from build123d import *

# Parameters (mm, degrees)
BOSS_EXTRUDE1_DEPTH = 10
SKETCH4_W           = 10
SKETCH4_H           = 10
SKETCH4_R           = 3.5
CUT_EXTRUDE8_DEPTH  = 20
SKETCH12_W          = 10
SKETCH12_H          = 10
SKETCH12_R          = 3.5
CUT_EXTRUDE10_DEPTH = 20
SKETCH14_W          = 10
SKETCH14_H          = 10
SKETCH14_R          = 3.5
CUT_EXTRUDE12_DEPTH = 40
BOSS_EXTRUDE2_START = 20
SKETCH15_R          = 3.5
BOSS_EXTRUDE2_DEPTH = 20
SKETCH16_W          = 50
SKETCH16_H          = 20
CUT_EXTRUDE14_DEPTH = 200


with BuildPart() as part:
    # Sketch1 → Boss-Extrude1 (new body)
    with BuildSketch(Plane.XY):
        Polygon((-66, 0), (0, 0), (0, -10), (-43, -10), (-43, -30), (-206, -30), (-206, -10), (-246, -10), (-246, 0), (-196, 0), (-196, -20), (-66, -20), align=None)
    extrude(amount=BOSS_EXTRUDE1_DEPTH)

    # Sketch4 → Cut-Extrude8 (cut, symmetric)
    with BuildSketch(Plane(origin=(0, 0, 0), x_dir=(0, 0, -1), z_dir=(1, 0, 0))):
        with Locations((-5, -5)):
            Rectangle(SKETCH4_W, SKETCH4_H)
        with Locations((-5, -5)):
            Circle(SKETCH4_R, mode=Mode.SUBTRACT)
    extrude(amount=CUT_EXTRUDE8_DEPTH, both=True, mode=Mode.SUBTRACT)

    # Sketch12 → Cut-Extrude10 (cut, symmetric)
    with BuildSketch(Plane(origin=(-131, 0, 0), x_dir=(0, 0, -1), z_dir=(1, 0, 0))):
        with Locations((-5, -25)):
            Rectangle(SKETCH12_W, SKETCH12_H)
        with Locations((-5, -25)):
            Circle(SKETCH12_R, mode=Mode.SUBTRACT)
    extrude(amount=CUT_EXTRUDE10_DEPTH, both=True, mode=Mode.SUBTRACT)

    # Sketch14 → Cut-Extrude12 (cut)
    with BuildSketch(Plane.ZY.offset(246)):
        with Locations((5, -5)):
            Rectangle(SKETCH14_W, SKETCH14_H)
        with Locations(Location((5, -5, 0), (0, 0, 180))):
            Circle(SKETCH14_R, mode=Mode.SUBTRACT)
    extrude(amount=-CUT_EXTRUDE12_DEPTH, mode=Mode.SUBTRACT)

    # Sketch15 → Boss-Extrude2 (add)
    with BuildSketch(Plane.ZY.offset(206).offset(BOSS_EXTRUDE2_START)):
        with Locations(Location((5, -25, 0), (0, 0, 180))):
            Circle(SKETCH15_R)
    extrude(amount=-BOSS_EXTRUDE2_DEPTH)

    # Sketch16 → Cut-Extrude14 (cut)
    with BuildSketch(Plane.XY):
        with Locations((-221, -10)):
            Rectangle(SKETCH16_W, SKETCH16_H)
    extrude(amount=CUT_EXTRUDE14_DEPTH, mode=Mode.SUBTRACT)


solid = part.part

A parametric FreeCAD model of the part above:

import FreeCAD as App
import Part
import Sketcher

doc = App.newDocument("Part")
body = doc.addObject("PartDesign::Body", "Body")

# Sketch on XY plane
sketch1 = body.newObject("Sketcher::SketchObject", "Sketch")
sketch1.AttachmentSupport = (doc.getObject("XY_Plane"), [""])
sketch1.MapMode = "FlatFace"
sketch1.addGeometry([
    Part.LineSegment(App.Vector(0, 0, 0), App.Vector(-66, 0, 0)),  # 0
    Part.LineSegment(App.Vector(-66, 0, 0), App.Vector(-66, -20, 0)),  # 1
    Part.LineSegment(App.Vector(-66, -20, 0), App.Vector(-196, -20, 0)),  # 2
    Part.LineSegment(App.Vector(-196, -20, 0), App.Vector(-196, 0, 0)),  # 3
    Part.LineSegment(App.Vector(-196, 0, 0), App.Vector(-246, 0, 0)),  # 4
    Part.LineSegment(App.Vector(-246, 0, 0), App.Vector(-246, -10, 0)),  # 5
    Part.LineSegment(App.Vector(-246, -10, 0), App.Vector(-206, -10, 0)),  # 6
    Part.LineSegment(App.Vector(-206, -10, 0), App.Vector(-206, -30, 0)),  # 7
    Part.LineSegment(App.Vector(-206, -30, 0), App.Vector(-43, -30, 0)),  # 8
    Part.LineSegment(App.Vector(-43, -30, 0), App.Vector(-43, -10, 0)),  # 9
    Part.LineSegment(App.Vector(-43, -10, 0), App.Vector(0, -10, 0)),  # 10
    Part.LineSegment(App.Vector(0, -10, 0), App.Vector(0, 0, 0)),  # 11
], False)
sketch1.addConstraint([
    Sketcher.Constraint("Coincident", 0, 2, 1, 1),
    Sketcher.Constraint("Coincident", 1, 2, 2, 1),
    Sketcher.Constraint("Coincident", 2, 2, 3, 1),
    Sketcher.Constraint("Coincident", 3, 2, 4, 1),
    Sketcher.Constraint("Coincident", 4, 2, 5, 1),
    Sketcher.Constraint("Coincident", 5, 2, 6, 1),
    Sketcher.Constraint("Coincident", 6, 2, 7, 1),
    Sketcher.Constraint("Coincident", 7, 2, 8, 1),
    Sketcher.Constraint("Coincident", 8, 2, 9, 1),
    Sketcher.Constraint("Coincident", 9, 2, 10, 1),
    Sketcher.Constraint("Coincident", 10, 2, 11, 1),
    Sketcher.Constraint("Coincident", 11, 2, 0, 1),
    Sketcher.Constraint("Horizontal", 0),
    Sketcher.Constraint("Vertical", 1),
    Sketcher.Constraint("Horizontal", 2),
    Sketcher.Constraint("Vertical", 3),
    Sketcher.Constraint("Horizontal", 4),
    Sketcher.Constraint("Vertical", 5),
    Sketcher.Constraint("Horizontal", 6),
    Sketcher.Constraint("Vertical", 7),
    Sketcher.Constraint("Horizontal", 8),
    Sketcher.Constraint("Vertical", 9),
    Sketcher.Constraint("Horizontal", 10),
    Sketcher.Constraint("Vertical", 11),
    Sketcher.Constraint("Coincident", 11, 2, -1, 1),
    Sketcher.Constraint("PointOnObject", 3, 2, -1),
    Sketcher.Constraint("Horizontal", 6, 2, 9, 2),
    Sketcher.Constraint("Equal", 3, 7),
    Sketcher.Constraint("DistanceX", 0, 2, 0, 1, 66.0),
    Sketcher.Constraint("DistanceX", 2, 2, 2, 1, 130.0),
    Sketcher.Constraint("DistanceX", 4, 2, 4, 1, 50.0),
    Sketcher.Constraint("DistanceX", 6, 1, 6, 2, 40.0),
    Sketcher.Constraint("DistanceX", 8, 1, 8, 2, 163.0),
    Sketcher.Constraint("DistanceY", 1, 2, 1, 1, 20.0),
    Sketcher.Constraint("DistanceY", 5, 2, 5, 1, 10.0),
])
pad1 = body.newObject("PartDesign::Pad", "Pad")
pad1.Profile = sketch1
pad1.Length = 10

# Sketch on YZ plane
sketch2 = body.newObject("Sketcher::SketchObject", "Sketch001")
sketch2.AttachmentSupport = (doc.getObject("YZ_Plane"), [""])
sketch2.MapMode = "FlatFace"
sketch2.addGeometry([
    Part.LineSegment(App.Vector(0, 10, 0), App.Vector(-10, 10, 0)),  # 0
    Part.LineSegment(App.Vector(-10, 10, 0), App.Vector(-10, 0, 0)),  # 1
    Part.LineSegment(App.Vector(-10, 0, 0), App.Vector(0, 0, 0)),  # 2
    Part.LineSegment(App.Vector(0, 0, 0), App.Vector(0, 10, 0)),  # 3
    Part.Circle(App.Vector(-5, 5, 0), App.Vector(0, 0, 1), 3.5),  # 4
], False)
sketch2.addConstraint([
    Sketcher.Constraint("Coincident", 0, 2, 1, 1),
    Sketcher.Constraint("Coincident", 1, 2, 2, 1),
    Sketcher.Constraint("Coincident", 2, 2, 3, 1),
    Sketcher.Constraint("Coincident", 3, 2, 0, 1),
    Sketcher.Constraint("Horizontal", 0),
    Sketcher.Constraint("Vertical", 1),
    Sketcher.Constraint("Horizontal", 2),
    Sketcher.Constraint("Vertical", 3),
    Sketcher.Constraint("Coincident", 2, 2, -1, 1),
    Sketcher.Constraint("Equal", 2, 1),
    Sketcher.Constraint("Diameter", 4, 7.0),
    Sketcher.Constraint("DistanceX", 0, 2, 0, 1, 10.0),
    Sketcher.Constraint("DistanceX", 4, 3, -1, 1, 5.0),
    Sketcher.Constraint("DistanceY", -1, 1, 4, 3, 5.0),
])
pocket1 = body.newObject("PartDesign::Pocket", "Pocket")
pocket1.Profile = sketch2
pocket1.Length = 40
pocket1.Midplane = True

# Sketch on YZ plane
sketch3 = body.newObject("Sketcher::SketchObject", "Sketch002")
sketch3.AttachmentSupport = (doc.getObject("YZ_Plane"), [""])
sketch3.MapMode = "FlatFace"
sketch3.AttachmentOffset = App.Placement(App.Vector(0, 0, -131), App.Rotation())
sketch3.addGeometry([
    Part.LineSegment(App.Vector(-20, 10, 0), App.Vector(-30, 10, 0)),  # 0
    Part.LineSegment(App.Vector(-30, 10, 0), App.Vector(-30, 0, 0)),  # 1
    Part.LineSegment(App.Vector(-30, 0, 0), App.Vector(-20, 0, 0)),  # 2
    Part.LineSegment(App.Vector(-20, 0, 0), App.Vector(-20, 10, 0)),  # 3
    Part.Circle(App.Vector(-25, 5, 0), App.Vector(0, 0, 1), 3.5),  # 4
], False)
sketch3.addConstraint([
    Sketcher.Constraint("Coincident", 0, 2, 1, 1),
    Sketcher.Constraint("Coincident", 1, 2, 2, 1),
    Sketcher.Constraint("Coincident", 2, 2, 3, 1),
    Sketcher.Constraint("Coincident", 3, 2, 0, 1),
    Sketcher.Constraint("Horizontal", 0),
    Sketcher.Constraint("Vertical", 1),
    Sketcher.Constraint("Horizontal", 2),
    Sketcher.Constraint("Vertical", 3),
    Sketcher.Constraint("PointOnObject", 1, 2, -1),
    Sketcher.Constraint("Equal", 2, 1),
    Sketcher.Constraint("Diameter", 4, 7.0),
    Sketcher.Constraint("DistanceX", 0, 2, 0, 1, 10.0),
    Sketcher.Constraint("DistanceX", 4, 3, -1, 1, 25.0),
    Sketcher.Constraint("DistanceY", -1, 1, 4, 3, 5.0),
    Sketcher.Constraint("DistanceX", 0, 2, -1, 1, 30.0),
])
pocket2 = body.newObject("PartDesign::Pocket", "Pocket001")
pocket2.Profile = sketch3
pocket2.Length = 40
pocket2.Midplane = True

# Sketch on YZ plane
sketch4 = body.newObject("Sketcher::SketchObject", "Sketch003")
sketch4.AttachmentSupport = (doc.getObject("YZ_Plane"), [""])
sketch4.MapMode = "FlatFace"
sketch4.AttachmentOffset = App.Placement(App.Vector(0, 0, -246), App.Rotation())
sketch4.addGeometry([
    Part.LineSegment(App.Vector(0, 0, 0), App.Vector(-10, 0, 0)),  # 0
    Part.LineSegment(App.Vector(-10, 0, 0), App.Vector(-10, 10, 0)),  # 1
    Part.LineSegment(App.Vector(-10, 10, 0), App.Vector(0, 10, 0)),  # 2
    Part.LineSegment(App.Vector(0, 10, 0), App.Vector(0, 0, 0)),  # 3
    Part.Circle(App.Vector(-5, 5, 0), App.Vector(0, 0, 1), 3.5),  # 4
], False)
sketch4.addConstraint([
    Sketcher.Constraint("Coincident", 0, 2, 1, 1),
    Sketcher.Constraint("Coincident", 1, 2, 2, 1),
    Sketcher.Constraint("Coincident", 2, 2, 3, 1),
    Sketcher.Constraint("Coincident", 3, 2, 0, 1),
    Sketcher.Constraint("Horizontal", 0),
    Sketcher.Constraint("Vertical", 1),
    Sketcher.Constraint("Horizontal", 2),
    Sketcher.Constraint("Vertical", 3),
    Sketcher.Constraint("Coincident", 3, 2, -1, 1),
    Sketcher.Constraint("Equal", 2, 1),
    Sketcher.Constraint("Diameter", 4, 7.0),
    Sketcher.Constraint("DistanceX", 0, 2, 0, 1, 10.0),
    Sketcher.Constraint("DistanceX", 4, 3, -1, 1, 5.0),
    Sketcher.Constraint("DistanceY", -1, 1, 4, 3, 5.0),
])
pocket3 = body.newObject("PartDesign::Pocket", "Pocket002")
pocket3.Profile = sketch4
pocket3.Length = 40
pocket3.Reversed = True

# Sketch on YZ plane
sketch5 = body.newObject("Sketcher::SketchObject", "Sketch004")
sketch5.AttachmentSupport = (doc.getObject("YZ_Plane"), [""])
sketch5.MapMode = "FlatFace"
sketch5.AttachmentOffset = App.Placement(App.Vector(0, 0, -226), App.Rotation())
sketch5.addGeometry(Part.Circle(App.Vector(-25, 5, 0), App.Vector(0, 0, 1), 3.5), False)
sketch5.addConstraint([
    Sketcher.Constraint("Diameter", 0, 7.0),
    Sketcher.Constraint("DistanceX", 0, 3, -1, 1, 25.0),
    Sketcher.Constraint("DistanceY", -1, 1, 0, 3, 5.0),
])
pad2 = body.newObject("PartDesign::Pad", "Pad001")
pad2.Profile = sketch5
pad2.Length = 20

# Sketch on XY plane
sketch6 = body.newObject("Sketcher::SketchObject", "Sketch005")
sketch6.AttachmentSupport = (doc.getObject("XY_Plane"), [""])
sketch6.MapMode = "FlatFace"
sketch6.addGeometry([
    Part.LineSegment(App.Vector(-246, 0, 0), App.Vector(-246, -20, 0)),
    Part.LineSegment(App.Vector(-246, -20, 0), App.Vector(-196, -20, 0)),
    Part.LineSegment(App.Vector(-196, -20, 0), App.Vector(-196, 0, 0)),
    Part.LineSegment(App.Vector(-196, 0, 0), App.Vector(-246, 0, 0)),
], False)
sketch6.addConstraint([
    Sketcher.Constraint("Coincident", 0, 2, 1, 1),
    Sketcher.Constraint("Coincident", 1, 2, 2, 1),
    Sketcher.Constraint("Coincident", 2, 2, 3, 1),
    Sketcher.Constraint("Coincident", 3, 2, 0, 1),
    Sketcher.Constraint("Vertical", 0),
    Sketcher.Constraint("Horizontal", 1),
    Sketcher.Constraint("Vertical", 2),
    Sketcher.Constraint("Horizontal", 3),
    Sketcher.Constraint("PointOnObject", 2, 2, -1),
    Sketcher.Constraint("DistanceX", 1, 1, 1, 2, 50.0),
    Sketcher.Constraint("DistanceY", 0, 2, 0, 1, 20.0),
    Sketcher.Constraint("DistanceX", 0, 2, -1, 1, 246.0),
])
pocket4 = body.newObject("PartDesign::Pocket", "Pocket003")
pocket4.Profile = sketch6
pocket4.Length = 200
pocket4.Reversed = True

doc.recompute()
